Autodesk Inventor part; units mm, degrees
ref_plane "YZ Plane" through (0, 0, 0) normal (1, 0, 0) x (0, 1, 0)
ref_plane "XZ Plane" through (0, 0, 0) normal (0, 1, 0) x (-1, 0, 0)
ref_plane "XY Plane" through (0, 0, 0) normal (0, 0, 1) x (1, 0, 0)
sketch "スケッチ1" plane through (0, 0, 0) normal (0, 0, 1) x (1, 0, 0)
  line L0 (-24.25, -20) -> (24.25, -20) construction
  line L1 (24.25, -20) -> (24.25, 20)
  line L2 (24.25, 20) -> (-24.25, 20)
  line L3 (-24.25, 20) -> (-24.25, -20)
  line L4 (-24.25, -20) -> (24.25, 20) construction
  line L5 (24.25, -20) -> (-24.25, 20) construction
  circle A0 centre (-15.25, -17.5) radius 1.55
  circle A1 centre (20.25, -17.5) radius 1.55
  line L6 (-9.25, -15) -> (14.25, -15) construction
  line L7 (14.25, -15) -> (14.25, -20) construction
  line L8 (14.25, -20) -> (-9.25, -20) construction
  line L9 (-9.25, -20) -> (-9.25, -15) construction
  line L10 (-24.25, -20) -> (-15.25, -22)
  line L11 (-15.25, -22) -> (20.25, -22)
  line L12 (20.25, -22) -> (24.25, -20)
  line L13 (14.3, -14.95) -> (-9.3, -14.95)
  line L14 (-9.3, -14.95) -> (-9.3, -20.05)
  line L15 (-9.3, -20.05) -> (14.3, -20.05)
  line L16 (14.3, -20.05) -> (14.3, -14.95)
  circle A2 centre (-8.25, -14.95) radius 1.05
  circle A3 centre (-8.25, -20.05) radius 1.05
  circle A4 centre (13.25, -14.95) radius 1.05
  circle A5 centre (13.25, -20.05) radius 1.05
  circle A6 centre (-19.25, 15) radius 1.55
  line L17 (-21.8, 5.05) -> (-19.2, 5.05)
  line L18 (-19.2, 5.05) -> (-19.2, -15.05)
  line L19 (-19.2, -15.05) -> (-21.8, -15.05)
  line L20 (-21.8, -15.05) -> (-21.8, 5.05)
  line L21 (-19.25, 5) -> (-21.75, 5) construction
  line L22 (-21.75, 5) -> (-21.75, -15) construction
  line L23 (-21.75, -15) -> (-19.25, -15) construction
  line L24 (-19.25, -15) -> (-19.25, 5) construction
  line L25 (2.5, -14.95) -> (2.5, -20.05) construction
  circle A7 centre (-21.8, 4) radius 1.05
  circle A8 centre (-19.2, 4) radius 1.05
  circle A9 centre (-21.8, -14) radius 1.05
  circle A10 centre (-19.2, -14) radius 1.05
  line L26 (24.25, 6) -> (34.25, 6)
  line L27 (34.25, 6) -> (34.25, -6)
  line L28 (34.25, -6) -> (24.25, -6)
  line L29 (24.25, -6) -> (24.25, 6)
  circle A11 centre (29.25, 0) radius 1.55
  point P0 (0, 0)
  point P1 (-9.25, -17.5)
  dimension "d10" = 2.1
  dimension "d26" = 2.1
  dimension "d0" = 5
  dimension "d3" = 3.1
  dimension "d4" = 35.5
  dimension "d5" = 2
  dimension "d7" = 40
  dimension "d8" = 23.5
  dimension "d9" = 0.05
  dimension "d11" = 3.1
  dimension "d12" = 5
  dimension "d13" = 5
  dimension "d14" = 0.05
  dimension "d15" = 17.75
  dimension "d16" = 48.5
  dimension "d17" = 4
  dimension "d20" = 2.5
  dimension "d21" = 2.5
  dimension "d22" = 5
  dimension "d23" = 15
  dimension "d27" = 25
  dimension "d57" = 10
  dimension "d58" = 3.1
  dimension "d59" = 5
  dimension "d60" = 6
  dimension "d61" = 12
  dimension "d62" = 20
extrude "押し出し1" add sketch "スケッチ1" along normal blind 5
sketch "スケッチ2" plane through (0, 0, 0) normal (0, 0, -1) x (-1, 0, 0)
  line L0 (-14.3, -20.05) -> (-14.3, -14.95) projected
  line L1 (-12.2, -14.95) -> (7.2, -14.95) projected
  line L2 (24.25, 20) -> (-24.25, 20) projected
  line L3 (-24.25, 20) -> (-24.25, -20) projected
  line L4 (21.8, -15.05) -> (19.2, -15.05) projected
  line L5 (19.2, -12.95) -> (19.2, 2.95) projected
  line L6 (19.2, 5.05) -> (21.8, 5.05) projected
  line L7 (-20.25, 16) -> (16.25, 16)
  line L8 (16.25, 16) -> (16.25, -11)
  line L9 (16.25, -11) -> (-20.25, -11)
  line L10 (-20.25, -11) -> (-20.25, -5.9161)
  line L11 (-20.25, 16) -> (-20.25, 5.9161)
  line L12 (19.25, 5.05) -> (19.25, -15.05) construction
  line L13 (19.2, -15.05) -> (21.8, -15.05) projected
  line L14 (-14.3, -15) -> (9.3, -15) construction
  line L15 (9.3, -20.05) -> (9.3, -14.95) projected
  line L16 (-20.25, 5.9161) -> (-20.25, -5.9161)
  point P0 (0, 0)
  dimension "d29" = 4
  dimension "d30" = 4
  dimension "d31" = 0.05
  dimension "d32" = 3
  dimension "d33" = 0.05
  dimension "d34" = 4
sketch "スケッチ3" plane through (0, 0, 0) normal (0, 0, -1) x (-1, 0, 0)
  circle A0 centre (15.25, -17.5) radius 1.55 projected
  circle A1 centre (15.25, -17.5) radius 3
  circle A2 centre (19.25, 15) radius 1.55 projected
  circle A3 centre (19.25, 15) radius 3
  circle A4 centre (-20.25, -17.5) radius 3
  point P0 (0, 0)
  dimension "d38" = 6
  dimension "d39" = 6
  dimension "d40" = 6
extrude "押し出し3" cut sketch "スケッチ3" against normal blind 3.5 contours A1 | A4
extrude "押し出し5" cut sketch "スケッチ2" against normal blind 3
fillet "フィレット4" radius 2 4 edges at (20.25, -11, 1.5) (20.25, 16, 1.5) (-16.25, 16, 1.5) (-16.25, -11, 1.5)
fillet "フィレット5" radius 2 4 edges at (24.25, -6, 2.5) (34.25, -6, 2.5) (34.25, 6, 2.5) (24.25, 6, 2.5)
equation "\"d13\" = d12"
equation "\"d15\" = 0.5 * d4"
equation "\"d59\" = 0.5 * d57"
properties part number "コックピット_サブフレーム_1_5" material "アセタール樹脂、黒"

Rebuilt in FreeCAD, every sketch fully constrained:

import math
import FreeCAD as App
import Part
import Sketcher
from FreeCAD import Vector


def edges_at(feature, points):
    """Names of the edges that pass closest to the given points."""
    edges = feature.Shape.Edges
    near = lambda p: min(range(len(edges)), key=lambda i: edges[i].distToShape(Part.Vertex(*p))[0])
    return sorted({f"Edge{near(p) + 1}" for p in points})

doc = App.newDocument("Part")
body = doc.addObject("PartDesign::Body", "Body")

# Sketch on XY plane
sketch1 = body.newObject("Sketcher::SketchObject", "Sketch")
sketch1.AttachmentSupport = (doc.getObject("XY_Plane"), [""])
sketch1.MapMode = "FlatFace"
sketch1.addGeometry(Part.LineSegment(Vector(20.2, -22, 0), Vector(24.2, -20, 0)), False)
sketch1.addGeometry(Part.LineSegment(Vector(24.2, -20, 0), Vector(24.2, -6, 0)), False)
sketch1.addGeometry(Part.LineSegment(Vector(24.2, -6, 0), Vector(34.2, -6, 0)), False)
sketch1.addGeometry(Part.LineSegment(Vector(34.2, -6, 0), Vector(34.2, 6, 0)), False)
sketch1.addGeometry(Part.LineSegment(Vector(34.2, 6, 0), Vector(24.2, 6, 0)), False)
sketch1.addGeometry(Part.LineSegment(Vector(24.2, 6, 0), Vector(24.2, 20, 0)), False)
sketch1.addGeometry(Part.LineSegment(Vector(24.2, 20, 0), Vector(-24.2, 20, 0)), False)
sketch1.addGeometry(Part.LineSegment(Vector(-24.2, 20, 0), Vector(-24.2, -20, 0)), False)
sketch1.addGeometry(Part.LineSegment(Vector(-24.2, -20, 0), Vector(-15.2, -22, 0)), False)
sketch1.addGeometry(Part.LineSegment(Vector(-15.2, -22, 0), Vector(20.2, -22, 0)), False)
sketch1.addGeometry(Part.Circle(Vector(-15.2, -17.5, 0), Vector(0, 0, 1), 1.6), False)
sketch1.addGeometry(Part.ArcOfCircle(Part.Circle(Vector(-8.2, -14.9, 0), Vector(0, 0, 1), 1.1), math.radians(0), math.radians(180)), False)
sketch1.addGeometry(Part.LineSegment(Vector(-7.2, -14.9, 0), Vector(12.2, -14.9, 0)), False)
sketch1.addGeometry(Part.ArcOfCircle(Part.Circle(Vector(13.2, -14.9, 0), Vector(0, 0, 1), 1.1), math.radians(0), math.radians(180)), False)
sketch1.addGeometry(Part.LineSegment(Vector(14.3, -14.9, 0), Vector(14.3, -20.1, 0)), False)
sketch1.addGeometry(Part.ArcOfCircle(Part.Circle(Vector(13.2, -20.1, 0), Vector(0, 0, 1), 1.1), math.radians(180), math.radians(360)), False)
sketch1.addGeometry(Part.LineSegment(Vector(12.2, -20.1, 0), Vector(-7.2, -20.1, 0)), False)
sketch1.addGeometry(Part.ArcOfCircle(Part.Circle(Vector(-8.2, -20.1, 0), Vector(0, 0, 1), 1.1), math.radians(180), math.radians(360)), False)
sketch1.addGeometry(Part.LineSegment(Vector(-9.3, -20.1, 0), Vector(-9.3, -14.9, 0)), False)
sketch1.addGeometry(Part.ArcOfCircle(Part.Circle(Vector(-21.8, 4, 0), Vector(0, 0, 1), 1.1), math.radians(90), math.radians(270)), False)
sketch1.addGeometry(Part.LineSegment(Vector(-21.8, 5, 0), Vector(-19.2, 5, 0)), False)
sketch1.addGeometry(Part.ArcOfCircle(Part.Circle(Vector(-19.2, 4, 0), Vector(0, 0, 1), 1.1), math.radians(-90), math.radians(90)), False)
sketch1.addGeometry(Part.LineSegment(Vector(-19.2, 3, 0), Vector(-19.2, -12.9, 0)), False)
sketch1.addGeometry(Part.ArcOfCircle(Part.Circle(Vector(-19.2, -14, 0), Vector(0, 0, 1), 1.1), math.radians(-90), math.radians(90)), False)
sketch1.addGeometry(Part.LineSegment(Vector(-19.2, -15.1, 0), Vector(-21.8, -15.1, 0)), False)
sketch1.addGeometry(Part.ArcOfCircle(Part.Circle(Vector(-21.8, -14, 0), Vector(0, 0, 1), 1.1), math.radians(90), math.radians(270)), False)
sketch1.addGeometry(Part.LineSegment(Vector(-21.8, -12.9, 0), Vector(-21.8, 3, 0)), False)
sketch1.addGeometry(Part.Circle(Vector(20.2, -17.5, 0), Vector(0, 0, 1), 1.6), False)
sketch1.addGeometry(Part.Circle(Vector(-19.2, 15, 0), Vector(0, 0, 1), 1.6), False)
sketch1.addGeometry(Part.Circle(Vector(29.2, 0, 0), Vector(0, 0, 1), 1.6), False)
sketch1.addConstraint(Sketcher.Constraint("Coincident", 0, 2, 1, 1))
sketch1.addConstraint(Sketcher.Constraint("Coincident", 1, 2, 2, 1))
sketch1.addConstraint(Sketcher.Constraint("Coincident", 2, 2, 3, 1))
sketch1.addConstraint(Sketcher.Constraint("Coincident", 3, 2, 4, 1))
sketch1.addConstraint(Sketcher.Constraint("Coincident", 4, 2, 5, 1))
sketch1.addConstraint(Sketcher.Constraint("Coincident", 5, 2, 6, 1))
sketch1.addConstraint(Sketcher.Constraint("Coincident", 6, 2, 7, 1))
sketch1.addConstraint(Sketcher.Constraint("Coincident", 7, 2, 8, 1))
sketch1.addConstraint(Sketcher.Constraint("Coincident", 8, 2, 9, 1))
sketch1.addConstraint(Sketcher.Constraint("Coincident", 9, 2, 0, 1))
sketch1.addConstraint(Sketcher.Constraint("Coincident", 11, 1, 12, 1))
sketch1.addConstraint(Sketcher.Constraint("Coincident", 12, 2, 13, 2))
sketch1.addConstraint(Sketcher.Constraint("Tangent", 13, 1, 14, 1))
sketch1.addConstraint(Sketcher.Constraint("Tangent", 14, 2, 15, 2))
sketch1.addConstraint(Sketcher.Constraint("Coincident", 15, 1, 16, 1))
sketch1.addConstraint(Sketcher.Constraint("Coincident", 16, 2, 17, 2))
sketch1.addConstraint(Sketcher.Constraint("Tangent", 17, 1, 18, 1))
sketch1.addConstraint(Sketcher.Constraint("Tangent", 18, 2, 11, 2))
sketch1.addConstraint(Sketcher.Constraint("Tangent", 19, 1, 20, 1))
sketch1.addConstraint(Sketcher.Constraint("Tangent", 20, 2, 21, 2))
sketch1.addConstraint(Sketcher.Constraint("Coincident", 21, 1, 22, 1))
sketch1.addConstraint(Sketcher.Constraint("Coincident", 22, 2, 23, 2))
sketch1.addConstraint(Sketcher.Constraint("Tangent", 23, 1, 24, 1))
sketch1.addConstraint(Sketcher.Constraint("Tangent", 24, 2, 25, 2))
sketch1.addConstraint(Sketcher.Constraint("Coincident", 25, 1, 26, 1))
sketch1.addConstraint(Sketcher.Constraint("Coincident", 26, 2, 19, 2))
sketch1.addConstraint(Sketcher.Constraint("Vertical", 1))
sketch1.addConstraint(Sketcher.Constraint("Horizontal", 2))
sketch1.addConstraint(Sketcher.Constraint("Vertical", 3))
sketch1.addConstraint(Sketcher.Constraint("Horizontal", 4))
sketch1.addConstraint(Sketcher.Constraint("Vertical", 5))
sketch1.addConstraint(Sketcher.Constraint("Horizontal", 6))
sketch1.addConstraint(Sketcher.Constraint("Vertical", 7))
sketch1.addConstraint(Sketcher.Constraint("Horizontal", 9))
sketch1.addConstraint(Sketcher.Constraint("Horizontal", 12))
sketch1.addConstraint(Sketcher.Constraint("Vertical", 14))
sketch1.addConstraint(Sketcher.Constraint("Horizontal", 16))
sketch1.addConstraint(Sketcher.Constraint("Vertical", 18))
sketch1.addConstraint(Sketcher.Constraint("Horizontal", 20))
sketch1.addConstraint(Sketcher.Constraint("Vertical", 22))
sketch1.addConstraint(Sketcher.Constraint("Horizontal", 24))
sketch1.addConstraint(Sketcher.Constraint("Vertical", 26))
sketch1.addConstraint(Sketcher.Constraint("Equal", 11, 13))
sketch1.addConstraint(Sketcher.Constraint("Equal", 13, 15))
sketch1.addConstraint(Sketcher.Constraint("Equal", 15, 17))
sketch1.addConstraint(Sketcher.Constraint("Equal", 17, 19))
sketch1.addConstraint(Sketcher.Constraint("Equal", 19, 21))
sketch1.addConstraint(Sketcher.Constraint("Equal", 21, 23))
sketch1.addConstraint(Sketcher.Constraint("Equal", 23, 25))
sketch1.addConstraint(Sketcher.Constraint("Equal", 10, 27))
sketch1.addConstraint(Sketcher.Constraint("Equal", 27, 28))
sketch1.addConstraint(Sketcher.Constraint("Equal", 28, 29))
sketch1.addConstraint(Sketcher.Constraint("Symmetric", 0, 2, 6, 2, -1, 1))
sketch1.addConstraint(Sketcher.Constraint("Symmetric", 5, 2, 7, 2, -1, 1))
sketch1.addConstraint(Sketcher.Constraint("PointOnObject", 29, 3, -1))
sketch1.addConstraint(Sketcher.Constraint("Horizontal", 11, 3, 13, 3))
sketch1.addConstraint(Sketcher.Constraint("Horizontal", 15, 3, 17, 3))
sketch1.addConstraint(Sketcher.Constraint("Horizontal", 10, 3, 27, 3))
sketch1.addConstraint(Sketcher.Constraint("Horizontal", 13, 3, 11, 1))
sketch1.addConstraint(Sketcher.Constraint("Horizontal", 14, 2, 15, 1))
sketch1.addConstraint(Sketcher.Constraint("Vertical", 21, 3, 23, 3))
sketch1.addConstraint(Sketcher.Constraint("Vertical", 19, 3, 25, 3))
sketch1.addConstraint(Sketcher.Constraint("Vertical", 10, 3, 8, 2))
sketch1.addConstraint(Sketcher.Constraint("Vertical", 27, 3, 9, 2))
sketch1.addConstraint(Sketcher.Constraint("Vertical", 20, 2, 21, 1))
sketch1.addConstraint(Sketcher.Constraint("Vertical", 24, 2, 25, 1))
sketch1.addConstraint(Sketcher.Constraint("Equal", 1, 5))
sketch1.addConstraint(Sketcher.Constraint("Diameter", 10, 3.1))
sketch1.addConstraint(Sketcher.Constraint("DistanceX", 2, 1, 2, 2, 10.0))
sketch1.addConstraint(Sketcher.Constraint("DistanceY", 3, 1, 3, 2, 12.0))
sketch1.addConstraint(Sketcher.Constraint("DistanceY", 7, 2, 7, 1, 40.0))
sketch1.addConstraint(Sketcher.Constraint("Radius", 11, 1.05))
sketch1.addConstraint(Sketcher.Constraint("DistanceX", 6, 2, 6, 1, 48.5))
sketch1.addConstraint(Sketcher.Constraint("DistanceX", 9, 1, 9, 2, 35.5))
sketch1.addConstraint(Sketcher.Constraint("DistanceY", -1, 1, 19, 3, 4.0))
sketch1.addConstraint(Sketcher.Constraint("DistanceY", -1, 1, 28, 3, 15.0))
sketch1.addConstraint(Sketcher.Constraint("DistanceX", 27, 3, 0, 2, 4.0))
sketch1.addConstraint(Sketcher.Constraint("DistanceX", 0, 2, 29, 3, 5.0))
sketch1.addConstraint(Sketcher.Constraint("DistanceX", 6, 2, 28, 3, 5.0))
sketch1.addConstraint(Sketcher.Constraint("DistanceY", 7, 2, 25, 3, 6.0))
sketch1.addConstraint(Sketcher.Constraint("DistanceY", 8, 2, 7, 2, 2.0))
sketch1.addConstraint(Sketcher.Constraint("DistanceX", 23, 3, 11, 1, 12.0))
sketch1.addConstraint(Sketcher.Constraint("DistanceY", 0, 2, 27, 3, 2.5))
sketch1.addConstraint(Sketcher.Constraint("DistanceX", 28, 3, 21, 3, 0.05))
sketch1.addConstraint(Sketcher.Constraint("DistanceY", 15, 3, 0, 2, 0.05))
sketch1.addConstraint(Sketcher.Constraint("DistanceX", 12, 1, 12, 2, 19.4))
sketch1.addConstraint(Sketcher.Constraint("DistanceX", 20, 1, 20, 2, 2.6))
sketch1.addConstraint(Sketcher.Constraint("DistanceY", 14, 2, 14, 1, 5.1))
pad1 = body.newObject("PartDesign::Pad", "Pad")
pad1.Profile = sketch1
pad1.Length = 5

# Sketch on XY plane
sketch2 = body.newObject("Sketcher::SketchObject", "Sketch001")
sketch2.AttachmentSupport = (doc.getObject("XY_Plane"), [""])
sketch2.MapMode = "FlatFace"
sketch2.addGeometry(Part.Circle(Vector(-15.2, -17.5, 0), Vector(0, 0, 1), 3), False)
sketch2.addGeometry(Part.Circle(Vector(-15.2, -17.5, 0), Vector(0, 0, 1), 1.6), False)
sketch2.addGeometry(Part.Circle(Vector(20.2, -17.5, 0), Vector(0, 0, 1), 3), False)
sketch2.addConstraint(Sketcher.Constraint("Coincident", 1, 3, 0, 3))
sketch2.addConstraint(Sketcher.Constraint("Equal", 0, 2))
sketch2.addConstraint(Sketcher.Constraint("Horizontal", 1, 3, 2, 3))
sketch2.addConstraint(Sketcher.Constraint("Diameter", 0, 6.0))
sketch2.addConstraint(Sketcher.Constraint("Diameter", 1, 3.1))
sketch2.addConstraint(Sketcher.Constraint("DistanceY", 0, 3, -1, 1, 17.5))
sketch2.addConstraint(Sketcher.Constraint("DistanceX", 0, 3, 2, 3, 35.5))
sketch2.addConstraint(Sketcher.Constraint("DistanceX", 0, 3, -1, 1, 15.25))
pocket1 = body.newObject("PartDesign::Pocket", "Pocket")
pocket1.Profile = sketch2
pocket1.Length = 3.5
pocket1.Reversed = True

# Sketch on XY plane
sketch3 = body.newObject("Sketcher::SketchObject", "Sketch002")
sketch3.AttachmentSupport = (doc.getObject("XY_Plane"), [""])
sketch3.MapMode = "FlatFace"
sketch3.addGeometry(Part.LineSegment(Vector(-16, 16, 0), Vector(20, 16, 0)), False)
sketch3.addGeometry(Part.LineSegment(Vector(20, 16, 0), Vector(20, -11, 0)), False)
sketch3.addGeometry(Part.LineSegment(Vector(20, -11, 0), Vector(-16, -11, 0)), False)
sketch3.addGeometry(Part.LineSegment(Vector(-16, -11, 0), Vector(-16, 16, 0)), False)
sketch3.addConstraint(Sketcher.Constraint("Coincident", 0, 2, 1, 1))
sketch3.addConstraint(Sketcher.Constraint("Coincident", 1, 2, 2, 1))
sketch3.addConstraint(Sketcher.Constraint("Coincident", 2, 2, 3, 1))
sketch3.addConstraint(Sketcher.Constraint("Coincident", 3, 2, 0, 1))
sketch3.addConstraint(Sketcher.Constraint("Horizontal", 0))
sketch3.addConstraint(Sketcher.Constraint("Vertical", 1))
sketch3.addConstraint(Sketcher.Constraint("Horizontal", 2))
sketch3.addConstraint(Sketcher.Constraint("Vertical", 3))
sketch3.addConstraint(Sketcher.Constraint("DistanceY", 1, 2, 1, 1, 27.0))
sketch3.addConstraint(Sketcher.Constraint("DistanceX", 0, 1, 0, 2, 36.5))
sketch3.addConstraint(Sketcher.Constraint("DistanceY", -1, 1, 0, 2, 16.0))
sketch3.addConstraint(Sketcher.Constraint("DistanceX", -1, 1, 0, 2, 20.25))
pocket2 = body.newObject("PartDesign::Pocket", "Pocket001")
pocket2.Profile = sketch3
pocket2.Length = 3
pocket2.Reversed = True
doc.recompute()

fillet = body.newObject("PartDesign::Fillet", "Fillet")
fillet.Base = (pocket2, edges_at(pocket2, [
    (20.25, -11, 1.5),
    (20.25, 16, 1.5),
    (-16.25, 16, 1.5),
    (-16.25, -11, 1.5),
]))
fillet.Radius = 2
doc.recompute()

fillet2 = body.newObject("PartDesign::Fillet", "Fillet001")
fillet2.Base = (fillet, edges_at(fillet, [
    (24.25, -6, 2.5),
    (34.25, -6, 2.5),
    (34.25, 6, 2.5),
    (24.25, 6, 2.5),
]))
fillet2.Radius = 2

doc.recompute()
